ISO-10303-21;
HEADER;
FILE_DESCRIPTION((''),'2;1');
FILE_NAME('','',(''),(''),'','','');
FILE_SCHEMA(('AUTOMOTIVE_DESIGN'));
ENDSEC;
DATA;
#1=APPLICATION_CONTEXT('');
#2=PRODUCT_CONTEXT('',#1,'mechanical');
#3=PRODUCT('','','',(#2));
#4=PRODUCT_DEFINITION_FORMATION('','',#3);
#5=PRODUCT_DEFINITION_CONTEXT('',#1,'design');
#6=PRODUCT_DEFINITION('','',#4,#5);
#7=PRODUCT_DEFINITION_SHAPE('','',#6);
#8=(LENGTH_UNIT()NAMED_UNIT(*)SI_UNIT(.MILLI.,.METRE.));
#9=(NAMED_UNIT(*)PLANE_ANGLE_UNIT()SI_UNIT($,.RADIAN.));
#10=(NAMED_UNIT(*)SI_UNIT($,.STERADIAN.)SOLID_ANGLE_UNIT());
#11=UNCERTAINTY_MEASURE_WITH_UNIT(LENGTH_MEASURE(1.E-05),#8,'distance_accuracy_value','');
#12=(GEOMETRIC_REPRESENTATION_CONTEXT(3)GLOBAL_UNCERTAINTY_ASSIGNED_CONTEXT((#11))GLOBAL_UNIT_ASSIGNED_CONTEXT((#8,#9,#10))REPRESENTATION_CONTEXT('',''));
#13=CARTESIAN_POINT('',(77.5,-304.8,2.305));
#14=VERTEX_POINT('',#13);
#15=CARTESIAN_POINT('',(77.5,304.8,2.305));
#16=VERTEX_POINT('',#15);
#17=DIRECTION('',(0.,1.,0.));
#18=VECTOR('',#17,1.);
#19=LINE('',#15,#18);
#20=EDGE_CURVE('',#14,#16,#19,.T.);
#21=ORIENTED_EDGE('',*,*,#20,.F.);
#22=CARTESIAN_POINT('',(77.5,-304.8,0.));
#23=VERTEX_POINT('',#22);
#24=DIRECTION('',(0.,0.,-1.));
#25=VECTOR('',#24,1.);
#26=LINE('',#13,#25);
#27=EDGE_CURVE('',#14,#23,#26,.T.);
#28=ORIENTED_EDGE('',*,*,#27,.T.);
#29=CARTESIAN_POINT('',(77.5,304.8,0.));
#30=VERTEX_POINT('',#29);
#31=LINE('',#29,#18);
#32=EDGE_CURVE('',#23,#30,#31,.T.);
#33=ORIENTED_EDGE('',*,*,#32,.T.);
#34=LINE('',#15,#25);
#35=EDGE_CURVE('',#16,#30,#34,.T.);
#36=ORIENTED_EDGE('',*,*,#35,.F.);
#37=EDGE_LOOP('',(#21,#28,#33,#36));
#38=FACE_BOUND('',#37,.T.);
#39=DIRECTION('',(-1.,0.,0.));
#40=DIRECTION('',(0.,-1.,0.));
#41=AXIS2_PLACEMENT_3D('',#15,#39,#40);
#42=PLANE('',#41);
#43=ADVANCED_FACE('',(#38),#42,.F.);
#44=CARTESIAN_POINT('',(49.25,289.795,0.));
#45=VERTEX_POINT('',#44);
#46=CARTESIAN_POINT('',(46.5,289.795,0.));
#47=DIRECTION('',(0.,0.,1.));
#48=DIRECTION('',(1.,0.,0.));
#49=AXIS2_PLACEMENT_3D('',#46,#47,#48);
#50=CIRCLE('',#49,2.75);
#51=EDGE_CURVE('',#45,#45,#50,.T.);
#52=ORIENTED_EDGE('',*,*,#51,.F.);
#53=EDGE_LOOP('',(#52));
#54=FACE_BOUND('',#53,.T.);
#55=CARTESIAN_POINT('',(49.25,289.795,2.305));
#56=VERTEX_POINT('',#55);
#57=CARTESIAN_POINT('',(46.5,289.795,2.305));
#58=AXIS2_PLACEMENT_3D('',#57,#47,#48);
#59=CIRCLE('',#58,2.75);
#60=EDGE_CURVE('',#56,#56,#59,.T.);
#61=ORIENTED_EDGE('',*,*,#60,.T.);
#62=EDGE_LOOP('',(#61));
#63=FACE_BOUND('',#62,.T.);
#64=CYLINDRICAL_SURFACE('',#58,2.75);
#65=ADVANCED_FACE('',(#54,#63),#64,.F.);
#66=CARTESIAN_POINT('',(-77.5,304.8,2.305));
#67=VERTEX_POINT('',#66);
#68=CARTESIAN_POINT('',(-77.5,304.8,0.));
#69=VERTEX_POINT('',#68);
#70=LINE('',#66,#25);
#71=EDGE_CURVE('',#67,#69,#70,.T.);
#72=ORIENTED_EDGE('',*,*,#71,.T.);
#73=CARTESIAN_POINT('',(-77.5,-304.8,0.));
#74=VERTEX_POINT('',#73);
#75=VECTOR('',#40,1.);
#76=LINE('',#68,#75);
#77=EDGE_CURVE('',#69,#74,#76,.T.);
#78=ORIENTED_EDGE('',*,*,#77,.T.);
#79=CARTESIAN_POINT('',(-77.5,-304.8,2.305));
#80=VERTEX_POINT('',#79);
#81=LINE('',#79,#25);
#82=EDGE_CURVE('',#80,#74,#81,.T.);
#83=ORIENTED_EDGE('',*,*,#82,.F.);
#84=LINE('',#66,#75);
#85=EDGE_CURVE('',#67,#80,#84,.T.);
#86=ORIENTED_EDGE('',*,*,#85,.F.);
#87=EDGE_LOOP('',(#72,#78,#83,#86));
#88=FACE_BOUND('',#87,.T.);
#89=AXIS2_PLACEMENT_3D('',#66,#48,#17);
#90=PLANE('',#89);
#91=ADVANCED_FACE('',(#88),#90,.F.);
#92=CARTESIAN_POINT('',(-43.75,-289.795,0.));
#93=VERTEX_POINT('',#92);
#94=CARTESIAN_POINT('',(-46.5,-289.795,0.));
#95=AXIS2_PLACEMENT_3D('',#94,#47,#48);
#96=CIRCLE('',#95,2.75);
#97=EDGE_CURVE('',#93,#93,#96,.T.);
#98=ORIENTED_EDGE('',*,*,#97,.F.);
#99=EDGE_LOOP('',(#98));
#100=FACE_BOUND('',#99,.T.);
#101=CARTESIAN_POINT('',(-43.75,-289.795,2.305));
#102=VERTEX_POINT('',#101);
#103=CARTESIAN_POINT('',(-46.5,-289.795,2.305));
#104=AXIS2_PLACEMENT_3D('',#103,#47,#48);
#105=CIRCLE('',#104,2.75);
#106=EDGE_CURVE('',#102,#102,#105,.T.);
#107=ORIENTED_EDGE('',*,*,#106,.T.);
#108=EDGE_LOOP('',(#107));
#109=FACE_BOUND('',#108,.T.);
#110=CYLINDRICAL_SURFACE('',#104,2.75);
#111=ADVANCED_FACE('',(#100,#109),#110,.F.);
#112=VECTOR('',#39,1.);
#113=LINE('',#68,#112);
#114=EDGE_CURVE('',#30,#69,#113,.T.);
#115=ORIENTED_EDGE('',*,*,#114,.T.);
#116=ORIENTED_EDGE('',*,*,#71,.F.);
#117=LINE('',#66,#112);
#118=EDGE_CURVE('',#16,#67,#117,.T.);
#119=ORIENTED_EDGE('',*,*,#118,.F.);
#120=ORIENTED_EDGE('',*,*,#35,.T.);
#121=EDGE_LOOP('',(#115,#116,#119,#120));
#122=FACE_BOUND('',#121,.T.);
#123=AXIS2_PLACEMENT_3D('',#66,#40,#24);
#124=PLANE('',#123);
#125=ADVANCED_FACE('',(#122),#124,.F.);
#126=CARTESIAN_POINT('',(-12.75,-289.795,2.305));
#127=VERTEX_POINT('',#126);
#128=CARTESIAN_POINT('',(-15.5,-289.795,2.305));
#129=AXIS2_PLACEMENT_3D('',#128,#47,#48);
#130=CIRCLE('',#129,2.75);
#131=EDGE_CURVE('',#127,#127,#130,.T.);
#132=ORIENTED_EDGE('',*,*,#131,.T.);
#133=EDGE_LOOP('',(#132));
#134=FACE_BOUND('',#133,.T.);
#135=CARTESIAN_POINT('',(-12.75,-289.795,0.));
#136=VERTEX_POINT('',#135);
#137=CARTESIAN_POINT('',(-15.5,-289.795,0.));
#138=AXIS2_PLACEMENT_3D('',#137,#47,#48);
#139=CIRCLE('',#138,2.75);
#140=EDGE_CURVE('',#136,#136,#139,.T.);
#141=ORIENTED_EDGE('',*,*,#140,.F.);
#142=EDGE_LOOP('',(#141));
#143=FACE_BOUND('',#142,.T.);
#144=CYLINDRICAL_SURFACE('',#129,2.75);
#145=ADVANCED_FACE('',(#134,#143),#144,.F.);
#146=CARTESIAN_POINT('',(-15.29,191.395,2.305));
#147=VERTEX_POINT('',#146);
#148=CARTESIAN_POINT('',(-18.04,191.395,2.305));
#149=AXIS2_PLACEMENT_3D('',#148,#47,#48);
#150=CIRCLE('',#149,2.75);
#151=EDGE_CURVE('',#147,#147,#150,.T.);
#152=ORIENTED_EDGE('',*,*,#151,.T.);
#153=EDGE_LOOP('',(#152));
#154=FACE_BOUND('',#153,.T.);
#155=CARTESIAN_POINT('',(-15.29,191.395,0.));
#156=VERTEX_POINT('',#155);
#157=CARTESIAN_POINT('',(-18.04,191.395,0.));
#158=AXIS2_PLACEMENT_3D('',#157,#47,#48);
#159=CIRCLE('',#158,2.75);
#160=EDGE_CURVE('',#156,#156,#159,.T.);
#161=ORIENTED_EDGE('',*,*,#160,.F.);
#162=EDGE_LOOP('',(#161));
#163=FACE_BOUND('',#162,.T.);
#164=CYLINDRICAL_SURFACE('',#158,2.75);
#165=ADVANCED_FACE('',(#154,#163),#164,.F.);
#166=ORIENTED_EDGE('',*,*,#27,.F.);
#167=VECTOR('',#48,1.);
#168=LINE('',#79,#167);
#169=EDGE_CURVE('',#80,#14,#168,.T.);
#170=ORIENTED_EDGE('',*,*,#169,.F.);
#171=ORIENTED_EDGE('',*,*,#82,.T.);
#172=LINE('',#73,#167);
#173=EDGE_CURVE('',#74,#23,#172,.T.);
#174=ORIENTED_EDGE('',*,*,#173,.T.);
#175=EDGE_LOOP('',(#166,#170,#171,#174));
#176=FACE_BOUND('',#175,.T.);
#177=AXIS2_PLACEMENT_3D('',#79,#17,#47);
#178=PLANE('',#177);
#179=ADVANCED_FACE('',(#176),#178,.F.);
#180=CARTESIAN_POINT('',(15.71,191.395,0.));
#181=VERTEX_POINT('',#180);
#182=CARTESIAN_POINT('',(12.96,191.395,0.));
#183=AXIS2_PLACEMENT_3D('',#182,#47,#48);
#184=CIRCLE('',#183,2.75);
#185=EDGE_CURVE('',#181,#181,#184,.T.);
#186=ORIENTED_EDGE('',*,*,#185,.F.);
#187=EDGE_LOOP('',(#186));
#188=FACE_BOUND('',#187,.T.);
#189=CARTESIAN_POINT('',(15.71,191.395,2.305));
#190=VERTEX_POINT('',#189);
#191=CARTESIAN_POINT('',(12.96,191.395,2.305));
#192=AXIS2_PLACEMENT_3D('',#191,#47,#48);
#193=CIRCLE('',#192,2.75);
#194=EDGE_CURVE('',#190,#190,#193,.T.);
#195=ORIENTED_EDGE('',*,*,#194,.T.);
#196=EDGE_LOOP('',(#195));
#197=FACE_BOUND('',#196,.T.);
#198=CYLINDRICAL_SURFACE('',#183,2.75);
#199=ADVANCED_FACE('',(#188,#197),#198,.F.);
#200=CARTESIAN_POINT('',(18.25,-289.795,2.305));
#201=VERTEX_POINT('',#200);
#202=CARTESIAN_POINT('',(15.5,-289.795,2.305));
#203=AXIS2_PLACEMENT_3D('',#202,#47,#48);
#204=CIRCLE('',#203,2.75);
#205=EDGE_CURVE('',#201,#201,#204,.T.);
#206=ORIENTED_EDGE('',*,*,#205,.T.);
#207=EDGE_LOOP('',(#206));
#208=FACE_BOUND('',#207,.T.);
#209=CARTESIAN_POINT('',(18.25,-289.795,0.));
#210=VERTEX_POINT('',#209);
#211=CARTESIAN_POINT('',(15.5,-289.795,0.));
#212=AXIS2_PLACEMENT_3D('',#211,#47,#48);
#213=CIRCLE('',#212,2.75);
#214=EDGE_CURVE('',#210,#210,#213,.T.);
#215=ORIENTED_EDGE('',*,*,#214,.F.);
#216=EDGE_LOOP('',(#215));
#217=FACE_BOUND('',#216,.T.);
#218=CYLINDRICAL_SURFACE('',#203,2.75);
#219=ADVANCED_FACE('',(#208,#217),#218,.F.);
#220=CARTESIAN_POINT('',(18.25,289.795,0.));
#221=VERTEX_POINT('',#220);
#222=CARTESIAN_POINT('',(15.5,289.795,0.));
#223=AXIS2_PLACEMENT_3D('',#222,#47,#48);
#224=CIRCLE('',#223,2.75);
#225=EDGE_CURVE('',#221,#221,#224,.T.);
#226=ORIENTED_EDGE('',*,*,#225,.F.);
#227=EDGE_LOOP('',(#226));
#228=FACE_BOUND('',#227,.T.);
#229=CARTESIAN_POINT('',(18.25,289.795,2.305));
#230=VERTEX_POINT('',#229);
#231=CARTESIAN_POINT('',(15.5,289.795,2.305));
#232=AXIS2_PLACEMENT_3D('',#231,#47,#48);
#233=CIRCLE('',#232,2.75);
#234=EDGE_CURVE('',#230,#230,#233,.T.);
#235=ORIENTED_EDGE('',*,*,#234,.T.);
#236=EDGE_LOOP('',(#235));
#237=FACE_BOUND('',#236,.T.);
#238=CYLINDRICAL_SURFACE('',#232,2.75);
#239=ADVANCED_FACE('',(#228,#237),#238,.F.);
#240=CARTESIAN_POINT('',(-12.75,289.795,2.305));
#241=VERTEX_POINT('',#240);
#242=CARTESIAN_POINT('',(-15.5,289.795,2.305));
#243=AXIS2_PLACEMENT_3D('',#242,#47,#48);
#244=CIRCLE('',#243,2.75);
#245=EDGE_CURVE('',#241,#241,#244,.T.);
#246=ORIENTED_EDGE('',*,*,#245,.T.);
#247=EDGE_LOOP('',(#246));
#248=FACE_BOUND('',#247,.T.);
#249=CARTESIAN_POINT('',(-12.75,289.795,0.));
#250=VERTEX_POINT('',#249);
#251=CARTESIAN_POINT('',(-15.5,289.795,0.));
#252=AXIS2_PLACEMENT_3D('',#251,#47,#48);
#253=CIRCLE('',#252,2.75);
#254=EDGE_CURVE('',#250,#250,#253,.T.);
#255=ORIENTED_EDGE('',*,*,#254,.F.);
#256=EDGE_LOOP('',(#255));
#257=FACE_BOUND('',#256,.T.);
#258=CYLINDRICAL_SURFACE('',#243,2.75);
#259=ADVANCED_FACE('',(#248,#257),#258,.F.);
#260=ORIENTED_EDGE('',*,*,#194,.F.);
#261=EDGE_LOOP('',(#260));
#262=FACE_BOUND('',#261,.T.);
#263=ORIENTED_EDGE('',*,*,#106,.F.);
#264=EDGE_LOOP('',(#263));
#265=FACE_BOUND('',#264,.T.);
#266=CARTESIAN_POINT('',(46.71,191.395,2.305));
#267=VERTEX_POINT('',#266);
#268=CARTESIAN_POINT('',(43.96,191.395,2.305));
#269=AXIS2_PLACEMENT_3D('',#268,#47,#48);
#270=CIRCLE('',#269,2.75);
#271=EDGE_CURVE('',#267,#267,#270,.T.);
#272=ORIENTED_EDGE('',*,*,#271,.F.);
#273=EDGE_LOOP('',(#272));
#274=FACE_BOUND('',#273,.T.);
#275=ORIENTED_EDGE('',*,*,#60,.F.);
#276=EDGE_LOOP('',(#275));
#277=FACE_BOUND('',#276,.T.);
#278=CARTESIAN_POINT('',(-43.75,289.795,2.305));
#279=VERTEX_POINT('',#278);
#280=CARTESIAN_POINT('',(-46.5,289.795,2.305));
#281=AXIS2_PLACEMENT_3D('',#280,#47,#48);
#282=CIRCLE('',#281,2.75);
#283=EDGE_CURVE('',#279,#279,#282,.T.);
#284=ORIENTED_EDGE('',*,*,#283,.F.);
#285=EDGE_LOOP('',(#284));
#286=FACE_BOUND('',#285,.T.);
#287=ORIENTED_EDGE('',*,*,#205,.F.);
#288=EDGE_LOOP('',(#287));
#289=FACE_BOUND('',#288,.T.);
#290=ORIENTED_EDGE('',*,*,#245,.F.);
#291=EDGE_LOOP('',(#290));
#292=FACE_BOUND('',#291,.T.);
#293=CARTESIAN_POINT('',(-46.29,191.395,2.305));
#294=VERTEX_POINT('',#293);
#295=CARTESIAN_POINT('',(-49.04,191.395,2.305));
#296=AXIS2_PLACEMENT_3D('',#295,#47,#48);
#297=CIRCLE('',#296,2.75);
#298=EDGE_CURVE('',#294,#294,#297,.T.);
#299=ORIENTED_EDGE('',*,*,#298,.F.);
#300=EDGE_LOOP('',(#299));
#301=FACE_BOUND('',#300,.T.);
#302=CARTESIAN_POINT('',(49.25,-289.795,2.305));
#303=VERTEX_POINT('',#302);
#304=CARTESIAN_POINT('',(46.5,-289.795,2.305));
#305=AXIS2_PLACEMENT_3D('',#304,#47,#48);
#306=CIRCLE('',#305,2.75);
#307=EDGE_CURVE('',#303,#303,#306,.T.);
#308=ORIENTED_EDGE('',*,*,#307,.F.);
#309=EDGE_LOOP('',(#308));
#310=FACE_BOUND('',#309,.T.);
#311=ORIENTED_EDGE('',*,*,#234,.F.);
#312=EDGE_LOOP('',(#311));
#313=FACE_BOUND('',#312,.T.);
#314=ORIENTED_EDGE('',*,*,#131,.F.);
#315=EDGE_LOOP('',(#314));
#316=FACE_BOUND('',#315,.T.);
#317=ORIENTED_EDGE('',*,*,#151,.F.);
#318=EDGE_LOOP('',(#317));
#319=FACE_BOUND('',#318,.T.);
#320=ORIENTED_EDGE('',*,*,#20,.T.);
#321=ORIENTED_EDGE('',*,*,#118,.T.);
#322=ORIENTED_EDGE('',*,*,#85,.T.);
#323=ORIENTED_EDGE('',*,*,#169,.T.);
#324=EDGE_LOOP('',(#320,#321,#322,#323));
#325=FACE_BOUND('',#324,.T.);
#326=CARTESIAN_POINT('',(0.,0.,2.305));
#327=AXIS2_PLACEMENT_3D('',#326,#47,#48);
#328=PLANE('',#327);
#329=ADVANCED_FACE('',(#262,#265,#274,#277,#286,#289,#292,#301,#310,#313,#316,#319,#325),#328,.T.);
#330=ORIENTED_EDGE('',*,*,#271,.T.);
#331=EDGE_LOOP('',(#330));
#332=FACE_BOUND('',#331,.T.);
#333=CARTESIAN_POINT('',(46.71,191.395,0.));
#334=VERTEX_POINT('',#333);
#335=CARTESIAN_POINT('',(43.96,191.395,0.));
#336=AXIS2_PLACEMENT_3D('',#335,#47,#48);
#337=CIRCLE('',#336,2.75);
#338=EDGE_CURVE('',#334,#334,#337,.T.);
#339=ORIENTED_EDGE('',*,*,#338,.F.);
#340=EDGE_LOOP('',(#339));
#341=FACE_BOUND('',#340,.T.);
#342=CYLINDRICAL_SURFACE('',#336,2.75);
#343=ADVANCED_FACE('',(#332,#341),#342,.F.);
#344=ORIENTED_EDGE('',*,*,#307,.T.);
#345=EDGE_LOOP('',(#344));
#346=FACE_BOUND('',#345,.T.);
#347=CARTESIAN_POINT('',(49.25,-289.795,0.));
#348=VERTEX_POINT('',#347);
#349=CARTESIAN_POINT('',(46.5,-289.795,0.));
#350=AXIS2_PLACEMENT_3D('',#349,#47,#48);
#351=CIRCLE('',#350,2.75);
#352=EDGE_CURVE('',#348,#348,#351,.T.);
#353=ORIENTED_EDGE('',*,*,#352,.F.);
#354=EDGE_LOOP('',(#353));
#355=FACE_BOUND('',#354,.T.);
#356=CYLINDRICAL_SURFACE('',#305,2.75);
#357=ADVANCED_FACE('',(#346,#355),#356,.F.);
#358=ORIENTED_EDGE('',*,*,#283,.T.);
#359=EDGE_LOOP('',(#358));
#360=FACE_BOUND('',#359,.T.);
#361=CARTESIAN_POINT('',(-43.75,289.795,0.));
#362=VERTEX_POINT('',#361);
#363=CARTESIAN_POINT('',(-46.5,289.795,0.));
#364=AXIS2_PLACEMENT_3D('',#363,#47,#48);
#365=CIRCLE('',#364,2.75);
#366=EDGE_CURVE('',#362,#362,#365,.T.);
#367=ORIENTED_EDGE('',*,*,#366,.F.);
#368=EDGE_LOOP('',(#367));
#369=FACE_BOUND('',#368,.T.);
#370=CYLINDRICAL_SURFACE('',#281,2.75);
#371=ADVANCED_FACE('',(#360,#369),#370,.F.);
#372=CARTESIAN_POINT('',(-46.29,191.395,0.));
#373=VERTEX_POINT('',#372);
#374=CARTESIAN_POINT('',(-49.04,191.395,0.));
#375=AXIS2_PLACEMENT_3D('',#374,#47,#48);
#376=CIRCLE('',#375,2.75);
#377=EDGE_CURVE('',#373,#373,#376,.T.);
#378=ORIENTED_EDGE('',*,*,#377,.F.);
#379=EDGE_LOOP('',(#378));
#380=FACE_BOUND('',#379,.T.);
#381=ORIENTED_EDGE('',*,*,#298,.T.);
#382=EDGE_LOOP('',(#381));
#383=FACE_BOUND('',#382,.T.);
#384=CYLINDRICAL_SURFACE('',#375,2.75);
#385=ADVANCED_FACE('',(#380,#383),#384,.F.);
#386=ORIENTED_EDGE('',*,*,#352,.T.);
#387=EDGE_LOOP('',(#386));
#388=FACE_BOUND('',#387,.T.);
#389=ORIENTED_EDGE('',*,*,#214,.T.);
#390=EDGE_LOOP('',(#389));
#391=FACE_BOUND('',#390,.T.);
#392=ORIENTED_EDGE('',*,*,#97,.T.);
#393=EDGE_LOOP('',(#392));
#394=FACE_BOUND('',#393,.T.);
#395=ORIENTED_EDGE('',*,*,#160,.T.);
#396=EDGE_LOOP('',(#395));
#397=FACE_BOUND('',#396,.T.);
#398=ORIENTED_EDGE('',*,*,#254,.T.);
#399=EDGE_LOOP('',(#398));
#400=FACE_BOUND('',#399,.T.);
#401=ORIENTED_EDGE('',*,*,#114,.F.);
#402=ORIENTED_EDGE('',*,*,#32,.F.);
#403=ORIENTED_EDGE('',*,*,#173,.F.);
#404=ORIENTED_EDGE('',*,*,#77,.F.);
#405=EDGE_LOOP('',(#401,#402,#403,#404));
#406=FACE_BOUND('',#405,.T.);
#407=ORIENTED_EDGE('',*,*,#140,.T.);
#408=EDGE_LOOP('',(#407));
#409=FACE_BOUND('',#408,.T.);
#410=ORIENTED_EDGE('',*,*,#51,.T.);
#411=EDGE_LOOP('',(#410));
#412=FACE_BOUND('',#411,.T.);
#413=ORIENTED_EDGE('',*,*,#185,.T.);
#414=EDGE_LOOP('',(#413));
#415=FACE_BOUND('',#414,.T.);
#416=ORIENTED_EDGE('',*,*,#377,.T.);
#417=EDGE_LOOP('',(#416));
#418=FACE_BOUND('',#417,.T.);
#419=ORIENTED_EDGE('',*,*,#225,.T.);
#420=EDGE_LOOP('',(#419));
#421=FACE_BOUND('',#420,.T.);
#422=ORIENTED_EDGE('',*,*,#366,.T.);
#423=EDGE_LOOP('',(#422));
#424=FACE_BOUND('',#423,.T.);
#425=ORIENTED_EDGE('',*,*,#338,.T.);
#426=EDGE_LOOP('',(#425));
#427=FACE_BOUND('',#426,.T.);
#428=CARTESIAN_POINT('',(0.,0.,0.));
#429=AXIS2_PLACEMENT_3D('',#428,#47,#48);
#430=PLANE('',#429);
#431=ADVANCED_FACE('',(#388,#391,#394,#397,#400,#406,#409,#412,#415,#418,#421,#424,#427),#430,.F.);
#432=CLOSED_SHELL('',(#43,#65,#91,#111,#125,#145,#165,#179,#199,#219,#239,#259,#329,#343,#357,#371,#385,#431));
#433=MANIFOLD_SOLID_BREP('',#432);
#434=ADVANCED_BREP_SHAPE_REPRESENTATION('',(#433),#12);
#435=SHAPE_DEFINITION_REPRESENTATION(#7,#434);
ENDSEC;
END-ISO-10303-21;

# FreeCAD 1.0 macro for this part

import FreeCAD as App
import Part
import Sketcher
from FreeCAD import Vector
Q = App.Units.Quantity


def add_polygon(sketch, points):
    """Adds a closed chain of lines whose ends are joined by coincident constraints."""
    first, n = sketch.GeometryCount, len(points)
    for a, b in zip(points, points[1:] + points[:1]):
        sketch.addGeometry(Part.LineSegment(App.Vector(*a, 0), App.Vector(*b, 0)), False)
    for i in range(n):
        sketch.addConstraint(Sketcher.Constraint("Coincident", first + i, 2, first + (i + 1) % n, 1))

doc = App.newDocument("Part")
body = doc.addObject("PartDesign::Body", "Body")

sketch1 = body.newObject("Sketcher::SketchObject", "Sketch")
sketch1.AttachmentSupport = (doc.getObject("XY_Plane"), [""])
sketch1.MapMode = "FlatFace"
add_polygon(sketch1, [(-78, 305), (-78, -305), (78, -305), (78, 305)])
sketch1.addConstraint(Sketcher.Constraint("Vertical", 0))
sketch1.addConstraint(Sketcher.Constraint("Horizontal", 1))
sketch1.addConstraint(Sketcher.Constraint("Vertical", 2))
sketch1.addConstraint(Sketcher.Constraint("Horizontal", 3))
sketch1.addConstraint(Sketcher.Constraint("Symmetric", 0, 2, 2, 2, -1, 1))
sketch1.addConstraint(Sketcher.Constraint("DistanceX", 1, 1, 1, 2, Q("155 mm")))
sketch1.addConstraint(Sketcher.Constraint("DistanceY", 0, 2, 0, 1, Q("609.6 mm")))
pad1 = body.newObject("PartDesign::Pad", "Pad")
pad1.Profile = sketch1
pad1.Length = 2.305

sketch2 = body.newObject("Sketcher::SketchObject", "Sketch001")
sketch2.AttachmentSupport = (doc.getObject("XY_Plane"), [""])
sketch2.MapMode = "FlatFace"
sketch2.AttachmentOffset = App.Placement(Vector(0, 0, 2.305), App.Rotation())
sketch2.addGeometry(Part.Circle(Vector(-46.5, 289.8, 0), Vector(0, 0, 1), 2.8), False)
sketch2.addGeometry(Part.Circle(Vector(-15.5, 289.8, 0), Vector(0, 0, 1), 2.8), False)
sketch2.addGeometry(Part.Circle(Vector(15.5, 289.8, 0), Vector(0, 0, 1), 2.8), False)
sketch2.addGeometry(Part.Circle(Vector(46.5, 289.8, 0), Vector(0, 0, 1), 2.8), False)
sketch2.addGeometry(Part.Circle(Vector(-46.5, -289.8, 0), Vector(0, 0, 1), 2.8), False)
sketch2.addGeometry(Part.Circle(Vector(-15.5, -289.8, 0), Vector(0, 0, 1), 2.8), False)
sketch2.addGeometry(Part.Circle(Vector(15.5, -289.8, 0), Vector(0, 0, 1), 2.8), False)
sketch2.addGeometry(Part.Circle(Vector(46.5, -289.8, 0), Vector(0, 0, 1), 2.8), False)
sketch2.addConstraint(Sketcher.Constraint("Equal", 0, 1))
sketch2.addConstraint(Sketcher.Constraint("Equal", 1, 2))
sketch2.addConstraint(Sketcher.Constraint("Equal", 2, 3))
sketch2.addConstraint(Sketcher.Constraint("Equal", 3, 4))
sketch2.addConstraint(Sketcher.Constraint("Equal", 4, 5))
sketch2.addConstraint(Sketcher.Constraint("Equal", 5, 6))
sketch2.addConstraint(Sketcher.Constraint("Equal", 6, 7))
sketch2.addConstraint(Sketcher.Constraint("Symmetric", 3, 3, 4, 3, -1, 1))
sketch2.addConstraint(Sketcher.Constraint("Symmetric", 2, 3, 5, 3, -1, 1))
sketch2.addConstraint(Sketcher.Constraint("Symmetric", 1, 3, 6, 3, -1, 1))
sketch2.addConstraint(Sketcher.Constraint("Symmetric", 0, 3, 7, 3, -1, 1))
sketch2.addConstraint(Sketcher.Constraint("Symmetric", 1, 3, 2, 3, -2))
sketch2.addConstraint(Sketcher.Constraint("Symmetric", 0, 3, 3, 3, -2))
sketch2.addConstraint(Sketcher.Constraint("Horizontal", 0, 3, 1, 3))
sketch2.addConstraint(Sketcher.Constraint("Diameter", 0, Q("5.5 mm")))
sketch2.addConstraint(Sketcher.Constraint("DistanceX", 0, 3, 1, 3, Q("31 mm")))
sketch2.addConstraint(Sketcher.Constraint("DistanceX", 1, 3, 2, 3, Q("31 mm")))
sketch2.addConstraint(Sketcher.Constraint("DistanceY", 4, 3, 0, 3, Q("579.59 mm")))
doc.recompute()
hole = body.newObject("PartDesign::Hole", "Hole")
hole.Profile = sketch2
hole.ThreadType = "None"
hole.Diameter = 5.5
hole.DepthType = "ThroughAll"

sketch3 = body.newObject("Sketcher::SketchObject", "Sketch002")
sketch3.AttachmentSupport = (doc.getObject("XY_Plane"), [""])
sketch3.MapMode = "FlatFace"
sketch3.AttachmentOffset = App.Placement(Vector(0, 0, 2.305), App.Rotation())
sketch3.addGeometry(Part.Circle(Vector(-49, 191.4, 0), Vector(0, 0, 1), 2.8), False)
sketch3.addConstraint(Sketcher.Constraint("Diameter", 0, Q("5.5 mm")))
sketch3.addConstraint(Sketcher.Constraint("DistanceX", 0, 3, -1, 1, Q("49.04 mm")))
sketch3.addConstraint(Sketcher.Constraint("DistanceY", -1, 1, 0, 3, Q("191.395 mm")))
pocket1 = body.newObject("PartDesign::Pocket", "Pocket")
pocket1.Profile = sketch3
pocket1.Type = "ThroughAll"
doc.recompute()

linearpattern = body.newObject("PartDesign::LinearPattern", "LinearPattern")
linearpattern.Originals = [pocket1]
linearpattern.Direction = (doc.getObject("X_Axis"), [""])
linearpattern.Mode = "offset"
linearpattern.Offset = 31
linearpattern.Occurrences = 4
body.Tip = linearpattern

doc.recompute()
